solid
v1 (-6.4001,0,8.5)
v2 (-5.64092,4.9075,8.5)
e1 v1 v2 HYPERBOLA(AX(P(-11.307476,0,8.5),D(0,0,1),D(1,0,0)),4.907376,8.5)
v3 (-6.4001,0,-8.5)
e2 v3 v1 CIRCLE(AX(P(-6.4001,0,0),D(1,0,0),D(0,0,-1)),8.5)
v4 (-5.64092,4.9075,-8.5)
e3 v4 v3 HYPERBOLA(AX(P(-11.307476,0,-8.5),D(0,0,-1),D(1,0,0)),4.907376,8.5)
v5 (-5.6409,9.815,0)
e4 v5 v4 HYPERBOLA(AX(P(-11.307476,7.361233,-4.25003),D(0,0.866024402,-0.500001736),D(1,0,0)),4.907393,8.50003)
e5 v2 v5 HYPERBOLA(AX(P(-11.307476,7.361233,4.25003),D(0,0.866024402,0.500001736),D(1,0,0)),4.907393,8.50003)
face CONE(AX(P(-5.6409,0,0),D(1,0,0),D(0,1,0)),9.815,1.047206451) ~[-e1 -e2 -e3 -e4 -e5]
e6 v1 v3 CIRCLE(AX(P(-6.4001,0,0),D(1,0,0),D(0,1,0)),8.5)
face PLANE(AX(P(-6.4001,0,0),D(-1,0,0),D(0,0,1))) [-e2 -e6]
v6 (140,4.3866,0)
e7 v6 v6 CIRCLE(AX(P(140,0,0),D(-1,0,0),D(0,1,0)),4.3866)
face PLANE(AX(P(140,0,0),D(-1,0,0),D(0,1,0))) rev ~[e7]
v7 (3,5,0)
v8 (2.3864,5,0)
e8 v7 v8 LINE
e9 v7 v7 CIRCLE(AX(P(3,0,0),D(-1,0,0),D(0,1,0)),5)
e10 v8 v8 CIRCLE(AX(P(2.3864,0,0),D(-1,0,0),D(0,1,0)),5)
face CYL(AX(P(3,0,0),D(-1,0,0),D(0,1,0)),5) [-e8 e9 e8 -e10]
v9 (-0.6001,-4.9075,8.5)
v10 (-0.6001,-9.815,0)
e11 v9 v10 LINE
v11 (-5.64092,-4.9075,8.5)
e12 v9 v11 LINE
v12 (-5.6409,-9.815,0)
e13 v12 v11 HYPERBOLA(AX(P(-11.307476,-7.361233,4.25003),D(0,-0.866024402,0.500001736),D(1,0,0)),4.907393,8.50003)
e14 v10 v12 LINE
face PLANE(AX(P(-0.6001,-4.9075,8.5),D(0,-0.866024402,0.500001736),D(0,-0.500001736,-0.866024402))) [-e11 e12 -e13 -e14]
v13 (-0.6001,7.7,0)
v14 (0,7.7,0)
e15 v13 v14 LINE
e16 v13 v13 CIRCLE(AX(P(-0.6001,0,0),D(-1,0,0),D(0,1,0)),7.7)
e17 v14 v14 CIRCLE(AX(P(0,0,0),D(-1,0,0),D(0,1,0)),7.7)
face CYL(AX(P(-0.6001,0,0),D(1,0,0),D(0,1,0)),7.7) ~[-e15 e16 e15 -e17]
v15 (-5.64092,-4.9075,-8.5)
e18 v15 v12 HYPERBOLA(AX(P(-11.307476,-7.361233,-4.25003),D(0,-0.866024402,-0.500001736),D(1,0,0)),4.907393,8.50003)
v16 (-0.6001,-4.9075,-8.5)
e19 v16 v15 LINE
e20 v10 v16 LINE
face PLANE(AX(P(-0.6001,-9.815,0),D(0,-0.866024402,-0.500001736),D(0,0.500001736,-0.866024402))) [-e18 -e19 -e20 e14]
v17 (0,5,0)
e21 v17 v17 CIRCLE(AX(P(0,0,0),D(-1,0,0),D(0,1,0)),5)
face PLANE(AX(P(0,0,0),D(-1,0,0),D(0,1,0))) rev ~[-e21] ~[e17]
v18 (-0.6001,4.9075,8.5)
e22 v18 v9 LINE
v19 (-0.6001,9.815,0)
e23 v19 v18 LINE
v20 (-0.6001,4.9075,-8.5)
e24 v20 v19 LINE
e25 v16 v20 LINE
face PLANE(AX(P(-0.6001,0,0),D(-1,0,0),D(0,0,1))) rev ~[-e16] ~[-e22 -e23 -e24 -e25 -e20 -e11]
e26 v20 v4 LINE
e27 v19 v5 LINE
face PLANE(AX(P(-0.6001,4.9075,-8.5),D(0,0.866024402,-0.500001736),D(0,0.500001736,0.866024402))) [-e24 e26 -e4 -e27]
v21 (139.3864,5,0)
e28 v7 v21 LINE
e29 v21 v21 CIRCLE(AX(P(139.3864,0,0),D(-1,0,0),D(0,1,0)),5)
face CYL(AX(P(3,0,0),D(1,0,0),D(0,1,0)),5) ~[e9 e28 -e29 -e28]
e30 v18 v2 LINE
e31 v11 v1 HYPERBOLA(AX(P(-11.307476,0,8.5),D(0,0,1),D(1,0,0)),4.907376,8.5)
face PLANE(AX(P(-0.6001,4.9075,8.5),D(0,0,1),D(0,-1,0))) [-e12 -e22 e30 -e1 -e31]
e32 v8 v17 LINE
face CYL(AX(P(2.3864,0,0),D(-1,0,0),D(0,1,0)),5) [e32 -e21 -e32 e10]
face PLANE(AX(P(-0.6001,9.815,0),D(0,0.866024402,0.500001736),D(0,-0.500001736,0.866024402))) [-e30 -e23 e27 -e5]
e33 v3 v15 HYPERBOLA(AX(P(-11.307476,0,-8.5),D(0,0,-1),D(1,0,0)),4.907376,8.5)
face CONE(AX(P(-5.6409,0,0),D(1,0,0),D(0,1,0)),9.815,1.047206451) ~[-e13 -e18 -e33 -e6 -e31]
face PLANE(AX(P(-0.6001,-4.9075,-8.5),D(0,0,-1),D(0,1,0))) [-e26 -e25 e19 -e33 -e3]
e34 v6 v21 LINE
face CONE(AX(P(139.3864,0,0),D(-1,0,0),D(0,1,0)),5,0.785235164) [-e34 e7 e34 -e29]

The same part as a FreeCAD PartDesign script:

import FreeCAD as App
import Part
import Sketcher
from FreeCAD import Vector
Q = App.Units.Quantity


def edges_at(feature, points):
    """Names of the edges that pass closest to the given points."""
    edges = feature.Shape.Edges
    near = lambda p: min(range(len(edges)), key=lambda i: edges[i].distToShape(Part.Vertex(*p))[0])
    return sorted({f"Edge{near(p) + 1}" for p in points})


def add_polygon(sketch, points):
    """Adds a closed chain of lines whose ends are joined by coincident constraints."""
    first, n = sketch.GeometryCount, len(points)
    for a, b in zip(points, points[1:] + points[:1]):
        sketch.addGeometry(Part.LineSegment(App.Vector(*a, 0), App.Vector(*b, 0)), False)
    for i in range(n):
        sketch.addConstraint(Sketcher.Constraint("Coincident", first + i, 2, first + (i + 1) % n, 1))

doc = App.newDocument("Part")
body = doc.addObject("PartDesign::Body", "Body")

sketch1 = doc.addObject("Sketcher::SketchObject", "Sketch")
body.addObject(sketch1)
sketch1.AttachmentSupport = (doc.XY_Plane, [""])
sketch1.MapMode = "FlatFace"
add_polygon(sketch1, [(0, 5), (0, 7.7), (-0.6001, 7.7), (-0.6001, 0), (140, 0), (140, 5)])
sketch1.addConstraint([
    Sketcher.Constraint("Vertical", 0),
    Sketcher.Constraint("Horizontal", 1),
    Sketcher.Constraint("Vertical", 2),
    Sketcher.Constraint("Horizontal", 3),
    Sketcher.Constraint("Vertical", 4),
    Sketcher.Constraint("Horizontal", 5),
    Sketcher.Constraint("PointOnObject", 0, 2, -2),
    Sketcher.Constraint("PointOnObject", 2, 2, -1),
    Sketcher.Constraint("DistanceX", 5, 2, 5, 1, 140.0),
    Sketcher.Constraint("DistanceX", 1, 2, 1, 1, 0.6),
    Sketcher.Constraint("DistanceY", 4, 1, 4, 2, 5.0),
    Sketcher.Constraint("DistanceY", 0, 1, 0, 2, 2.7),
])
revolution = doc.addObject("PartDesign::Revolution", "Revolution")
body.addObject(revolution)
revolution.Profile = sketch1
revolution.ReferenceAxis = (sketch1, ["H_Axis"])
revolution.Angle = 360

sketch2 = doc.addObject("Sketcher::SketchObject", "Sketch001")
body.addObject(sketch2)
sketch2.AttachmentSupport = (doc.YZ_Plane, [""])
sketch2.MapMode = "FlatFace"
sketch2.AttachmentOffset = App.Placement(Vector(0, 0, -0.6001), App.Rotation())
add_polygon(sketch2, [(4.9075, 8.5), (9.815, 0), (4.9075, -8.5), (-4.9075, -8.5), (-9.815, 0), (-4.9075, 8.5)])
sketch2.addConstraint([
    Sketcher.Constraint("Horizontal", 2),
    Sketcher.Constraint("Horizontal", 5),
    Sketcher.Constraint("Symmetric", 0, 2, 3, 2, -1, 1),
    Sketcher.Constraint("Symmetric", 1, 2, 4, 2, -1, 1),
    Sketcher.Constraint("PointOnObject", 0, 2, -1),
    Sketcher.Constraint("Parallel", 0, 3),
    Sketcher.Constraint("Vertical", 2, 2, 4, 2),
    Sketcher.Constraint("DistanceY", 2, 2, 4, 2, 17.0),
    Sketcher.Constraint("Angle", 0, Q("-60 deg")),
    Sketcher.Constraint("DistanceX", 2, 2, 2, 1, 9.815),
])
pad1 = doc.addObject("PartDesign::Pad", "Pad")
body.addObject(pad1)
pad1.Profile = sketch2
pad1.Length = 5.8
pad1.Reversed = True

sketch3 = doc.addObject("Sketcher::SketchObject", "Sketch002")
body.addObject(sketch3)
sketch3.AttachmentSupport = (doc.XY_Plane, [""])
sketch3.MapMode = "FlatFace"
add_polygon(sketch3, [(-6.4001, 9.815), (-6.4001, 8.5), (-5.6409, 9.815)])
sketch3.addConstraint([
    Sketcher.Constraint("Vertical", 0),
    Sketcher.Constraint("Horizontal", 2),
    Sketcher.Constraint("Angle", 1, Q("60.0005 deg")),
    Sketcher.Constraint("DistanceX", 0, 2, -1, 1, 6.4),
    Sketcher.Constraint("DistanceY", -1, 1, 0, 2, 8.5),
    Sketcher.Constraint("DistanceY", 0, 2, 0, 1, 1.315),
])
groove = doc.addObject("PartDesign::Groove", "Groove")
body.addObject(groove)
groove.Profile = sketch3
groove.ReferenceAxis = (sketch3, ["H_Axis"])
groove.Angle = 360
doc.recompute()

chamfer = doc.addObject("PartDesign::Chamfer", "Chamfer")
body.addObject(chamfer)
chamfer.Base = (groove, edges_at(groove, [(140, -5, 0)]))
chamfer.ChamferType = "Two distances"
chamfer.Size = 0.6134
chamfer.Size2 = 0.6136

doc.recompute()
